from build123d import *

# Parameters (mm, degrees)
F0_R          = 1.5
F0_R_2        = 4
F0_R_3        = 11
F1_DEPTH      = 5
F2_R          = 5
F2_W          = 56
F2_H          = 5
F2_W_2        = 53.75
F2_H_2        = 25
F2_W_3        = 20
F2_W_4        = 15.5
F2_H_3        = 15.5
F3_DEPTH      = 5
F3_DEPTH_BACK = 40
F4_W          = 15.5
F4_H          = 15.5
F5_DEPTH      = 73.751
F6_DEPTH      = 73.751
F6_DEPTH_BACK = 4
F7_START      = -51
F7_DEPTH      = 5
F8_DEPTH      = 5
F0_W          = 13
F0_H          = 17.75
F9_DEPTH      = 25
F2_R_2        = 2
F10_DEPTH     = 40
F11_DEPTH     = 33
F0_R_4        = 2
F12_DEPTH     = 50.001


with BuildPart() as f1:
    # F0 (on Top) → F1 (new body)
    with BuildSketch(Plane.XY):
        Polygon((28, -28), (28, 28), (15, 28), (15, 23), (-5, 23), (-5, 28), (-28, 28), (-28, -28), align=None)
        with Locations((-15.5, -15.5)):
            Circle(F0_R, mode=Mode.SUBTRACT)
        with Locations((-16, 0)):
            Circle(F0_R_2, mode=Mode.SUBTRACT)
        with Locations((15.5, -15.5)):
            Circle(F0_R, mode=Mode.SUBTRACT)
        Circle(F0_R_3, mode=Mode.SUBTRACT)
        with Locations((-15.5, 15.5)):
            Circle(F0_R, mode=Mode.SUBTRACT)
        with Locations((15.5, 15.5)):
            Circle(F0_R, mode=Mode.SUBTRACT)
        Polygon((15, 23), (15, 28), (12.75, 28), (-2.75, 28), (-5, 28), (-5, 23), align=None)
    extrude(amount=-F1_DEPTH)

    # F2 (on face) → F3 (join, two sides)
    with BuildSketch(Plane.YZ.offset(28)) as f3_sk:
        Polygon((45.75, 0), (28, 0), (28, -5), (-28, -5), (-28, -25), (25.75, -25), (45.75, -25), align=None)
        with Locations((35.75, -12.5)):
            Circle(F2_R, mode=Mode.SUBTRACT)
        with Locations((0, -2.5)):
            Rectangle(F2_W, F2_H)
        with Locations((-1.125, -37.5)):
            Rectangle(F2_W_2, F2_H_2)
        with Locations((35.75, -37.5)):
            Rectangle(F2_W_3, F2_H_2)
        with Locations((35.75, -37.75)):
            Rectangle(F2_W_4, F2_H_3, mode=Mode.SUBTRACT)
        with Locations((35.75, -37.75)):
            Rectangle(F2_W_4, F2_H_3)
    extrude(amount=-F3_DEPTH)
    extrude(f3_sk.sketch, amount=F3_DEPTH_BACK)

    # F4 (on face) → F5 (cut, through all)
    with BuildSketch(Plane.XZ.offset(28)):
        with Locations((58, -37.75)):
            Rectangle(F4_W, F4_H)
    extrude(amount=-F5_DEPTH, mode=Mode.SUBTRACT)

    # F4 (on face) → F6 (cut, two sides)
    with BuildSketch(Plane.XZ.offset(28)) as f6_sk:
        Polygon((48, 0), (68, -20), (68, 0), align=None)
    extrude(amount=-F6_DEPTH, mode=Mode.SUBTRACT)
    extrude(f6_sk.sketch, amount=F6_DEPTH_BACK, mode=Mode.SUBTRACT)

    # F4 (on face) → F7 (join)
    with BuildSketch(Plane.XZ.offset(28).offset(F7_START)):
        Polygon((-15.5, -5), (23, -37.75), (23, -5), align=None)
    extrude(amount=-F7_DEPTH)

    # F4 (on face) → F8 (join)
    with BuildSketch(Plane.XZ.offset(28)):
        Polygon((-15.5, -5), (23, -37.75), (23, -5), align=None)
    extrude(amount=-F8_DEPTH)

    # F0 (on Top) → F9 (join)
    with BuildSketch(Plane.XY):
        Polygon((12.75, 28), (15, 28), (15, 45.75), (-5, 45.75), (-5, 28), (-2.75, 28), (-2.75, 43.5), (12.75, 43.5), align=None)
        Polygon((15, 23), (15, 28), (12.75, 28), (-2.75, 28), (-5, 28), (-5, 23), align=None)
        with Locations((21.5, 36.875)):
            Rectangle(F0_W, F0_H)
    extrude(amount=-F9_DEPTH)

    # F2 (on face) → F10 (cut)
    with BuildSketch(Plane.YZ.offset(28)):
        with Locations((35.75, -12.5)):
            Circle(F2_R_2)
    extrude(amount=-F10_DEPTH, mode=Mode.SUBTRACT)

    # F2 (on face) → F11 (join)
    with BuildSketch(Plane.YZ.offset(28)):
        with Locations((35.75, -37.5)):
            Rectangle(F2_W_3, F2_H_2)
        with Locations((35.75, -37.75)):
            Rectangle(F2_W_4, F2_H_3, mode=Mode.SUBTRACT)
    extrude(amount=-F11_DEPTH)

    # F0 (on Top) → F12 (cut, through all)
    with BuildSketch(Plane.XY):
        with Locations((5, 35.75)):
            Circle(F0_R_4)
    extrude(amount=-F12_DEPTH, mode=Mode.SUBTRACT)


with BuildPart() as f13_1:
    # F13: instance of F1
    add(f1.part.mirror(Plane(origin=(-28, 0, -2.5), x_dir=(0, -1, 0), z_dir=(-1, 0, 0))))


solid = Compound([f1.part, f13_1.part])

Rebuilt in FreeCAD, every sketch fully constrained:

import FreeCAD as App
import Part
import Sketcher
from FreeCAD import Vector
Q = App.Units.Quantity

doc = App.newDocument("Part")
params = doc.addObject("Spreadsheet::Sheet", "Params")
for row, (alias, value) in enumerate([
    ("sketch1_diameter", "3 mm"),
    ("sketch1_diameter2", "8 mm"),
    ("sketch1_diameter3", "22 mm"),
    ("sketch1_width", "56 mm"),
    ("pad1_length", "5 mm"),
    ("sketch2_diameter", "10 mm"),
    ("sketch2_height", "50 mm"),
    ("sketch2_width", "73.75 mm"),
    ("pad2_length", "5 mm"),
    ("pad2_length2", "40 mm"),
    ("sketch3_width", "15.5 mm"),
    ("sketch4_width", "20 mm"),
    ("sketch5_width", "38.5 mm"),
    ("sketch5_height", "32.75 mm"),
    ("pad3_length", "5 mm"),
    ("sketch6_width", "38.5 mm"),
    ("sketch6_height", "32.75 mm"),
    ("pad4_length", "5 mm"),
    ("sketch7_width", "20 mm"),
    ("sketch7_width2", "13 mm"),
    ("sketch7_height", "5 mm"),
    ("sketch7_width3", "15.5 mm"),
    ("sketch7_height2", "22.75 mm"),
    ("pad5_length", "25 mm"),
    ("sketch8_diameter", "4 mm"),
    ("pocket3_length", "40 mm"),
    ("sketch9_width", "20 mm"),
    ("sketch9_height", "25 mm"),
    ("sketch9_width2", "15.5 mm"),
    ("pad6_length", "33 mm"),
    ("sketch10_diameter", "4 mm"),
], start=1):
    params.set(f"A{row}", alias)
    params.set(f"B{row}", "=" + value)
    params.setAlias(f"B{row}", alias)

body = doc.addObject("PartDesign::Body", "Body")

# Sketch on XY plane
sketch1 = doc.addObject("Sketcher::SketchObject", "Sketch")
body.addObject(sketch1)
sketch1.AttachmentSupport = (doc.XY_Plane, [""])
sketch1.MapMode = "FlatFace"
sketch1.addGeometry(Part.LineSegment(Vector(28, -28, 0), Vector(28, 28, 0)), False)
sketch1.addGeometry(Part.LineSegment(Vector(28, 28, 0), Vector(-28, 28, 0)), False)
sketch1.addGeometry(Part.LineSegment(Vector(-28, 28, 0), Vector(-28, -28, 0)), False)
sketch1.addGeometry(Part.LineSegment(Vector(-28, -28, 0), Vector(28, -28, 0)), False)
sketch1.addGeometry(Part.Circle(Vector(-15.5, -15.5, 0), Vector(0, 0, 1), 1.5), False)
sketch1.addGeometry(Part.Circle(Vector(15.5, -15.5, 0), Vector(0, 0, 1), 1.5), False)
sketch1.addGeometry(Part.Circle(Vector(-16, 0, 0), Vector(0, 0, 1), 4), False)
sketch1.addGeometry(Part.Circle(Vector(-15.5, 15.5, 0), Vector(0, 0, 1), 1.5), False)
sketch1.addGeometry(Part.Circle(Vector(0, 0, 0), Vector(0, 0, 1), 11), False)
sketch1.addGeometry(Part.Circle(Vector(15.5, 15.5, 0), Vector(0, 0, 1), 1.5), False)
sketch1.addConstraint(Sketcher.Constraint("Coincident", 0, 2, 1, 1))
sketch1.addConstraint(Sketcher.Constraint("Coincident", 1, 2, 2, 1))
sketch1.addConstraint(Sketcher.Constraint("Coincident", 2, 2, 3, 1))
sketch1.addConstraint(Sketcher.Constraint("Coincident", 3, 2, 0, 1))
sketch1.addConstraint(Sketcher.Constraint("Vertical", 0))
sketch1.addConstraint(Sketcher.Constraint("Horizontal", 1))
sketch1.addConstraint(Sketcher.Constraint("Vertical", 2))
sketch1.addConstraint(Sketcher.Constraint("Horizontal", 3))
sketch1.addConstraint(Sketcher.Constraint("Coincident", 8, 3, -1, 1))
sketch1.addConstraint(Sketcher.Constraint("Equal", 4, 5))
sketch1.addConstraint(Sketcher.Constraint("Equal", 5, 7))
sketch1.addConstraint(Sketcher.Constraint("Equal", 7, 9))
sketch1.addConstraint(Sketcher.Constraint("Symmetric", 5, 3, 7, 3, -1, 1))
sketch1.addConstraint(Sketcher.Constraint("Symmetric", 4, 3, 9, 3, -1, 1))
sketch1.addConstraint(Sketcher.Constraint("Symmetric", 0, 2, 2, 2, -1, 1))
sketch1.addConstraint(Sketcher.Constraint("Symmetric", 4, 3, 5, 3, -2))
sketch1.addConstraint(Sketcher.Constraint("PointOnObject", 6, 3, -1))
sketch1.addConstraint(Sketcher.Constraint("Equal", 3, 0))
sketch1.addConstraint(Sketcher.Constraint("Diameter", 4, Q("3 mm")))
sketch1.addConstraint(Sketcher.Constraint("Diameter", 6, Q("8 mm")))
sketch1.addConstraint(Sketcher.Constraint("Diameter", 8, Q("22 mm")))
sketch1.addConstraint(Sketcher.Constraint("DistanceX", 1, 2, 1, 1, Q("56 mm")))
sketch1.addConstraint(Sketcher.Constraint("DistanceX", 6, 3, -1, 1, Q("16 mm")))
sketch1.addConstraint(Sketcher.Constraint("DistanceX", 4, 3, 5, 3, Q("31 mm")))
sketch1.addConstraint(Sketcher.Constraint("DistanceY", 4, 3, 7, 3, Q("31 mm")))
sketch1.setExpression("Constraints[18]", "Params.sketch1_diameter")
sketch1.setExpression("Constraints[19]", "Params.sketch1_diameter2")
sketch1.setExpression("Constraints[20]", "Params.sketch1_diameter3")
sketch1.setExpression("Constraints[21]", "Params.sketch1_width")
pad1 = doc.addObject("PartDesign::Pad", "Pad")
body.addObject(pad1)
pad1.Profile = sketch1
pad1.setExpression("Length", "Params.pad1_length")
pad1.Reversed = True

# Sketch on YZ plane
sketch2 = doc.addObject("Sketcher::SketchObject", "Sketch001")
body.addObject(sketch2)
sketch2.AttachmentSupport = (doc.YZ_Plane, [""])
sketch2.MapMode = "FlatFace"
sketch2.AttachmentOffset = App.Placement(Vector(0, 0, 28), App.Rotation())
sketch2.addGeometry(Part.LineSegment(Vector(46, 0, 0), Vector(-28, 0, 0)), False)
sketch2.addGeometry(Part.LineSegment(Vector(-28, 0, 0), Vector(-28, -50, 0)), False)
sketch2.addGeometry(Part.LineSegment(Vector(-28, -50, 0), Vector(46, -50, 0)), False)
sketch2.addGeometry(Part.LineSegment(Vector(46, -50, 0), Vector(46, 0, 0)), False)
sketch2.addGeometry(Part.Circle(Vector(36, -12, 0), Vector(0, 0, 1), 5), False)
sketch2.addConstraint(Sketcher.Constraint("Coincident", 0, 2, 1, 1))
sketch2.addConstraint(Sketcher.Constraint("Coincident", 1, 2, 2, 1))
sketch2.addConstraint(Sketcher.Constraint("Coincident", 2, 2, 3, 1))
sketch2.addConstraint(Sketcher.Constraint("Coincident", 3, 2, 0, 1))
sketch2.addConstraint(Sketcher.Constraint("Horizontal", 0))
sketch2.addConstraint(Sketcher.Constraint("Vertical", 1))
sketch2.addConstraint(Sketcher.Constraint("Horizontal", 2))
sketch2.addConstraint(Sketcher.Constraint("Vertical", 3))
sketch2.addConstraint(Sketcher.Constraint("PointOnObject", 0, 2, -1))
sketch2.addConstraint(Sketcher.Constraint("Diameter", 4, Q("10 mm")))
sketch2.addConstraint(Sketcher.Constraint("DistanceY", 1, 2, 1, 1, Q("50 mm")))
sketch2.addConstraint(Sketcher.Constraint("DistanceX", 0, 2, -1, 1, Q("28 mm")))
sketch2.addConstraint(Sketcher.Constraint("DistanceX", 4, 3, 2, 2, Q("10 mm")))
sketch2.addConstraint(Sketcher.Constraint("DistanceX", 0, 2, 0, 1, Q("73.75 mm")))
sketch2.addConstraint(Sketcher.Constraint("DistanceY", 4, 3, -1, 1, Q("12.5 mm")))
sketch2.setExpression("Constraints[9]", "Params.sketch2_diameter")
sketch2.setExpression("Constraints[10]", "Params.sketch2_height")
sketch2.setExpression("Constraints[13]", "Params.sketch2_width")
pad2 = doc.addObject("PartDesign::Pad", "Pad001")
body.addObject(pad2)
pad2.Profile = sketch2
pad2.Type = "TwoLengths"
pad2.setExpression("Length", "Params.pad2_length")
pad2.setExpression("Length2", "Params.pad2_length2")
pad2.Reversed = True

# Sketch on XZ plane
sketch3 = doc.addObject("Sketcher::SketchObject", "Sketch002")
body.addObject(sketch3)
sketch3.AttachmentSupport = (doc.XZ_Plane, [""])
sketch3.MapMode = "FlatFace"
sketch3.AttachmentOffset = App.Placement(Vector(0, 0, 28), App.Rotation())
sketch3.addGeometry(Part.LineSegment(Vector(50, -30, 0), Vector(50, -46, 0)), False)
sketch3.addGeometry(Part.LineSegment(Vector(50, -46, 0), Vector(66, -46, 0)), False)
sketch3.addGeometry(Part.LineSegment(Vector(66, -46, 0), Vector(66, -30, 0)), False)
sketch3.addGeometry(Part.LineSegment(Vector(66, -30, 0), Vector(50, -30, 0)), False)
sketch3.addConstraint(Sketcher.Constraint("Coincident", 0, 2, 1, 1))
sketch3.addConstraint(Sketcher.Constraint("Coincident", 1, 2, 2, 1))
sketch3.addConstraint(Sketcher.Constraint("Coincident", 2, 2, 3, 1))
sketch3.addConstraint(Sketcher.Constraint("Coincident", 3, 2, 0, 1))
sketch3.addConstraint(Sketcher.Constraint("Vertical", 0))
sketch3.addConstraint(Sketcher.Constraint("Horizontal", 1))
sketch3.addConstraint(Sketcher.Constraint("Vertical", 2))
sketch3.addConstraint(Sketcher.Constraint("Horizontal", 3))
sketch3.addConstraint(Sketcher.Constraint("Equal", 3, 0))
sketch3.addConstraint(Sketcher.Constraint("DistanceX", 1, 1, 1, 2, Q("15.5 mm")))
sketch3.addConstraint(Sketcher.Constraint("DistanceY", 2, 2, -1, 1, Q("30 mm")))
sketch3.addConstraint(Sketcher.Constraint("DistanceX", -1, 1, 0, 2, Q("50.25 mm")))
sketch3.setExpression("Constraints[9]", "Params.sketch3_width")
pocket1 = doc.addObject("PartDesign::Pocket", "Pocket")
body.addObject(pocket1)
pocket1.Profile = sketch3
pocket1.Type = "ThroughAll"

# Sketch on XZ plane
sketch4 = doc.addObject("Sketcher::SketchObject", "Sketch003")
body.addObject(sketch4)
sketch4.AttachmentSupport = (doc.XZ_Plane, [""])
sketch4.MapMode = "FlatFace"
sketch4.AttachmentOffset = App.Placement(Vector(0, 0, 28), App.Rotation())
sketch4.addGeometry(Part.LineSegment(Vector(48, 0, 0), Vector(68, -20, 0)), False)
sketch4.addGeometry(Part.LineSegment(Vector(68, -20, 0), Vector(68, 0, 0)), False)
sketch4.addGeometry(Part.LineSegment(Vector(68, 0, 0), Vector(48, 0, 0)), False)
sketch4.addConstraint(Sketcher.Constraint("Coincident", 0, 2, 1, 1))
sketch4.addConstraint(Sketcher.Constraint("Coincident", 1, 2, 2, 1))
sketch4.addConstraint(Sketcher.Constraint("Coincident", 2, 2, 0, 1))
sketch4.addConstraint(Sketcher.Constraint("Vertical", 1))
sketch4.addConstraint(Sketcher.Constraint("Horizontal", 2))
sketch4.addConstraint(Sketcher.Constraint("PointOnObject", 1, 2, -1))
sketch4.addConstraint(Sketcher.Constraint("Equal", 2, 1))
sketch4.addConstraint(Sketcher.Constraint("DistanceX", 2, 2, 2, 1, Q("20 mm")))
sketch4.addConstraint(Sketcher.Constraint("DistanceX", -1, 1, 0, 2, Q("68 mm")))
sketch4.setExpression("Constraints[7]", "Params.sketch4_width")
pocket2 = doc.addObject("PartDesign::Pocket", "Pocket001")
body.addObject(pocket2)
pocket2.Profile = sketch4
pocket2.Type = "ThroughAll"
pocket2.Midplane = True

# Sketch on XZ plane
sketch5 = doc.addObject("Sketcher::SketchObject", "Sketch004")
body.addObject(sketch5)
sketch5.AttachmentSupport = (doc.XZ_Plane, [""])
sketch5.MapMode = "FlatFace"
sketch5.AttachmentOffset = App.Placement(Vector(0, 0, -23), App.Rotation())
sketch5.addGeometry(Part.LineSegment(Vector(-16, -5, 0), Vector(23, -38, 0)), False)
sketch5.addGeometry(Part.LineSegment(Vector(23, -38, 0), Vector(23, -5, 0)), False)
sketch5.addGeometry(Part.LineSegment(Vector(23, -5, 0), Vector(-16, -5, 0)), False)
sketch5.addConstraint(Sketcher.Constraint("Coincident", 0, 2, 1, 1))
sketch5.addConstraint(Sketcher.Constraint("Coincident", 1, 2, 2, 1))
sketch5.addConstraint(Sketcher.Constraint("Coincident", 2, 2, 0, 1))
sketch5.addConstraint(Sketcher.Constraint("Vertical", 1))
sketch5.addConstraint(Sketcher.Constraint("Horizontal", 2))
sketch5.addConstraint(Sketcher.Constraint("DistanceX", 2, 2, 2, 1, Q("38.5 mm")))
sketch5.addConstraint(Sketcher.Constraint("DistanceX", -1, 1, 0, 2, Q("23 mm")))
sketch5.addConstraint(Sketcher.Constraint("DistanceY", 1, 2, -1, 1, Q("5 mm")))
sketch5.addConstraint(Sketcher.Constraint("DistanceY", 1, 1, 1, 2, Q("32.75 mm")))
sketch5.setExpression("Constraints[5]", "Params.sketch5_width")
sketch5.setExpression("Constraints[8]", "Params.sketch5_height")
pad3 = doc.addObject("PartDesign::Pad", "Pad002")
body.addObject(pad3)
pad3.Profile = sketch5
pad3.setExpression("Length", "Params.pad3_length")
pad3.Reversed = True

# Sketch on XZ plane
sketch6 = doc.addObject("Sketcher::SketchObject", "Sketch005")
body.addObject(sketch6)
sketch6.AttachmentSupport = (doc.XZ_Plane, [""])
sketch6.MapMode = "FlatFace"
sketch6.AttachmentOffset = App.Placement(Vector(0, 0, 28), App.Rotation())
sketch6.addGeometry(Part.LineSegment(Vector(-16, -5, 0), Vector(23, -38, 0)), False)
sketch6.addGeometry(Part.LineSegment(Vector(23, -38, 0), Vector(23, -5, 0)), False)
sketch6.addGeometry(Part.LineSegment(Vector(23, -5, 0), Vector(-16, -5, 0)), False)
sketch6.addConstraint(Sketcher.Constraint("Coincident", 0, 2, 1, 1))
sketch6.addConstraint(Sketcher.Constraint("Coincident", 1, 2, 2, 1))
sketch6.addConstraint(Sketcher.Constraint("Coincident", 2, 2, 0, 1))
sketch6.addConstraint(Sketcher.Constraint("Vertical", 1))
sketch6.addConstraint(Sketcher.Constraint("Horizontal", 2))
sketch6.addConstraint(Sketcher.Constraint("DistanceX", 2, 2, 2, 1, Q("38.5 mm")))
sketch6.addConstraint(Sketcher.Constraint("DistanceX", -1, 1, 0, 2, Q("23 mm")))
sketch6.addConstraint(Sketcher.Constraint("DistanceY", 1, 2, -1, 1, Q("5 mm")))
sketch6.addConstraint(Sketcher.Constraint("DistanceY", 1, 1, 1, 2, Q("32.75 mm")))
sketch6.setExpression("Constraints[5]", "Params.sketch6_width")
sketch6.setExpression("Constraints[8]", "Params.sketch6_height")
pad4 = doc.addObject("PartDesign::Pad", "Pad003")
body.addObject(pad4)
pad4.Profile = sketch6
pad4.setExpression("Length", "Params.pad4_length")
pad4.Reversed = True

# Sketch on XY plane
sketch7 = doc.addObject("Sketcher::SketchObject", "Sketch006")
body.addObject(sketch7)
sketch7.AttachmentSupport = (doc.XY_Plane, [""])
sketch7.MapMode = "FlatFace"
sketch7.addGeometry(Part.LineSegment(Vector(-5, 46, 0), Vector(-5, 23, 0)), False)
sketch7.addGeometry(Part.LineSegment(Vector(-5, 23, 0), Vector(15, 23, 0)), False)
sketch7.addGeometry(Part.LineSegment(Vector(15, 23, 0), Vector(15, 28, 0)), False)
sketch7.addGeometry(Part.LineSegment(Vector(15, 28, 0), Vector(28, 28, 0)), False)
sketch7.addGeometry(Part.LineSegment(Vector(28, 28, 0), Vector(28, 46, 0)), False)
sketch7.addGeometry(Part.LineSegment(Vector(28, 46, 0), Vector(-5, 46, 0)), False)
sketch7.addGeometry(Part.LineSegment(Vector(-3, 28, 0), Vector(-3, 44, 0)), False)
sketch7.addGeometry(Part.LineSegment(Vector(-3, 44, 0), Vector(13, 44, 0)), False)
sketch7.addGeometry(Part.LineSegment(Vector(13, 44, 0), Vector(13, 28, 0)), False)
sketch7.addGeometry(Part.LineSegment(Vector(13, 28, 0), Vector(-3, 28, 0)), False)
sketch7.addConstraint(Sketcher.Constraint("Coincident", 0, 2, 1, 1))
sketch7.addConstraint(Sketcher.Constraint("Coincident", 1, 2, 2, 1))
sketch7.addConstraint(Sketcher.Constraint("Coincident", 2, 2, 3, 1))
sketch7.addConstraint(Sketcher.Constraint("Coincident", 3, 2, 4, 1))
sketch7.addConstraint(Sketcher.Constraint("Coincident", 4, 2, 5, 1))
sketch7.addConstraint(Sketcher.Constraint("Coincident", 5, 2, 0, 1))
sketch7.addConstraint(Sketcher.Constraint("Coincident", 6, 2, 7, 1))
sketch7.addConstraint(Sketcher.Constraint("Coincident", 7, 2, 8, 1))
sketch7.addConstraint(Sketcher.Constraint("Coincident", 8, 2, 9, 1))
sketch7.addConstraint(Sketcher.Constraint("Coincident", 9, 2, 6, 1))
sketch7.addConstraint(Sketcher.Constraint("Vertical", 0))
sketch7.addConstraint(Sketcher.Constraint("Horizontal", 1))
sketch7.addConstraint(Sketcher.Constraint("Vertical", 2))
sketch7.addConstraint(Sketcher.Constraint("Horizontal", 3))
sketch7.addConstraint(Sketcher.Constraint("Vertical", 4))
sketch7.addConstraint(Sketcher.Constraint("Horizontal", 5))
sketch7.addConstraint(Sketcher.Constraint("Vertical", 6))
sketch7.addConstraint(Sketcher.Constraint("Horizontal", 7))
sketch7.addConstraint(Sketcher.Constraint("Vertical", 8))
sketch7.addConstraint(Sketcher.Constraint("Horizontal", 9))
sketch7.addConstraint(Sketcher.Constraint("Horizontal", 3, 2, 8, 2))
sketch7.addConstraint(Sketcher.Constraint("Equal", 9, 6))
sketch7.addConstraint(Sketcher.Constraint("DistanceX", 1, 1, 1, 2, Q("20 mm")))
sketch7.addConstraint(Sketcher.Constraint("DistanceX", 3, 1, 3, 2, Q("13 mm")))
sketch7.addConstraint(Sketcher.Constraint("DistanceY", 2, 1, 2, 2, Q("5 mm")))
sketch7.addConstraint(Sketcher.Constraint("DistanceX", 7, 1, 7, 2, Q("15.5 mm")))
sketch7.addConstraint(Sketcher.Constraint("DistanceX", 0, 2, -1, 1, Q("5 mm")))
sketch7.addConstraint(Sketcher.Constraint("DistanceY", -1, 1, 0, 2, Q("23 mm")))
sketch7.addConstraint(Sketcher.Constraint("DistanceY", 0, 2, 0, 1, Q("22.75 mm")))
sketch7.addConstraint(Sketcher.Constraint("DistanceX", 6, 2, -1, 1, Q("2.75 mm")))
sketch7.setExpression("Constraints[22]", "Params.sketch7_width")
sketch7.setExpression("Constraints[23]", "Params.sketch7_width2")
sketch7.setExpression("Constraints[24]", "Params.sketch7_height")
sketch7.setExpression("Constraints[25]", "Params.sketch7_width3")
sketch7.setExpression("Constraints[28]", "Params.sketch7_height2")
pad5 = doc.addObject("PartDesign::Pad", "Pad004")
body.addObject(pad5)
pad5.Profile = sketch7
pad5.setExpression("Length", "Params.pad5_length")
pad5.Reversed = True

# Sketch on YZ plane
sketch8 = doc.addObject("Sketcher::SketchObject", "Sketch007")
body.addObject(sketch8)
sketch8.AttachmentSupport = (doc.YZ_Plane, [""])
sketch8.MapMode = "FlatFace"
sketch8.AttachmentOffset = App.Placement(Vector(0, 0, 28), App.Rotation())
sketch8.addGeometry(Part.Circle(Vector(35.8, -12.5, 0), Vector(0, 0, 1), 2), False)
sketch8.addConstraint(Sketcher.Constraint("Diameter", 0, Q("4 mm")))
sketch8.addConstraint(Sketcher.Constraint("DistanceY", 0, 3, -1, 1, Q("12.5 mm")))
sketch8.addConstraint(Sketcher.Constraint("DistanceX", -1, 1, 0, 3, Q("35.75 mm")))
sketch8.setExpression("Constraints[0]", "Params.sketch8_diameter")
pocket3 = doc.addObject("PartDesign::Pocket", "Pocket002")
body.addObject(pocket3)
pocket3.Profile = sketch8
pocket3.setExpression("Length", "Params.pocket3_length")

# Sketch on YZ plane
sketch9 = doc.addObject("Sketcher::SketchObject", "Sketch008")
body.addObject(sketch9)
sketch9.AttachmentSupport = (doc.YZ_Plane, [""])
sketch9.MapMode = "FlatFace"
sketch9.AttachmentOffset = App.Placement(Vector(0, 0, 28), App.Rotation())
sketch9.addGeometry(Part.LineSegment(Vector(26, -25, 0), Vector(26, -50, 0)), False)
sketch9.addGeometry(Part.LineSegment(Vector(26, -50, 0), Vector(46, -50, 0)), False)
sketch9.addGeometry(Part.LineSegment(Vector(46, -50, 0), Vector(46, -25, 0)), False)
sketch9.addGeometry(Part.LineSegment(Vector(46, -25, 0), Vector(26, -25, 0)), False)
sketch9.addGeometry(Part.LineSegment(Vector(44, -46, 0), Vector(28, -46, 0)), False)
sketch9.addGeometry(Part.LineSegment(Vector(28, -46, 0), Vector(28, -30, 0)), False)
sketch9.addGeometry(Part.LineSegment(Vector(28, -30, 0), Vector(44, -30, 0)), False)
sketch9.addGeometry(Part.LineSegment(Vector(44, -30, 0), Vector(44, -46, 0)), False)
sketch9.addConstraint(Sketcher.Constraint("Coincident", 0, 2, 1, 1))
sketch9.addConstraint(Sketcher.Constraint("Coincident", 1, 2, 2, 1))
sketch9.addConstraint(Sketcher.Constraint("Coincident", 2, 2, 3, 1))
sketch9.addConstraint(Sketcher.Constraint("Coincident", 3, 2, 0, 1))
sketch9.addConstraint(Sketcher.Constraint("Coincident", 4, 2, 5, 1))
sketch9.addConstraint(Sketcher.Constraint("Coincident", 5, 2, 6, 1))
sketch9.addConstraint(Sketcher.Constraint("Coincident", 6, 2, 7, 1))
sketch9.addConstraint(Sketcher.Constraint("Coincident", 7, 2, 4, 1))
sketch9.addConstraint(Sketcher.Constraint("Vertical", 0))
sketch9.addConstraint(Sketcher.Constraint("Horizontal", 1))
sketch9.addConstraint(Sketcher.Constraint("Vertical", 2))
sketch9.addConstraint(Sketcher.Constraint("Horizontal", 3))
sketch9.addConstraint(Sketcher.Constraint("Horizontal", 4))
sketch9.addConstraint(Sketcher.Constraint("Vertical", 5))
sketch9.addConstraint(Sketcher.Constraint("Horizontal", 6))
sketch9.addConstraint(Sketcher.Constraint("Vertical", 7))
sketch9.addConstraint(Sketcher.Constraint("Equal", 6, 5))
sketch9.addConstraint(Sketcher.Constraint("DistanceX", 1, 1, 1, 2, Q("20 mm")))
sketch9.addConstraint(Sketcher.Constraint("DistanceY", 0, 2, 0, 1, Q("25 mm")))
sketch9.addConstraint(Sketcher.Constraint("DistanceX", 4, 2, 4, 1, Q("15.5 mm")))
sketch9.addConstraint(Sketcher.Constraint("DistanceY", 0, 2, -1, 1, Q("50 mm")))
sketch9.addConstraint(Sketcher.Constraint("DistanceX", -1, 1, 4, 2, Q("28 mm")))
sketch9.addConstraint(Sketcher.Constraint("DistanceY", 5, 2, -1, 1, Q("30 mm")))
sketch9.addConstraint(Sketcher.Constraint("DistanceX", -1, 1, 0, 2, Q("25.75 mm")))
sketch9.setExpression("Constraints[17]", "Params.sketch9_width")
sketch9.setExpression("Constraints[18]", "Params.sketch9_height")
sketch9.setExpression("Constraints[19]", "Params.sketch9_width2")
pad6 = doc.addObject("PartDesign::Pad", "Pad005")
body.addObject(pad6)
pad6.Profile = sketch9
pad6.setExpression("Length", "Params.pad6_length")
pad6.Reversed = True

# Sketch on XY plane
sketch10 = doc.addObject("Sketcher::SketchObject", "Sketch009")
body.addObject(sketch10)
sketch10.AttachmentSupport = (doc.XY_Plane, [""])
sketch10.MapMode = "FlatFace"
sketch10.addGeometry(Part.Circle(Vector(5, 35.8, 0), Vector(0, 0, 1), 2), False)
sketch10.addConstraint(Sketcher.Constraint("Diameter", 0, Q("4 mm")))
sketch10.addConstraint(Sketcher.Constraint("DistanceX", -1, 1, 0, 3, Q("5 mm")))
sketch10.addConstraint(Sketcher.Constraint("DistanceY", -1, 1, 0, 3, Q("35.75 mm")))
sketch10.setExpression("Constraints[0]", "Params.sketch10_diameter")
pocket4 = doc.addObject("PartDesign::Pocket", "Pocket003")
body.addObject(pocket4)
pocket4.Profile = sketch10
pocket4.Type = "ThroughAll"
body2 = doc.addObject("PartDesign::Body", "Body001")
doc.recompute()

mirroring = doc.addObject("Part::Mirroring", "Mirroring")
mirroring.Source = body
mirroring.Base = Vector(-28, 0, -2.5)
mirroring.Normal = Vector(-1, 0, 0)
body2.BaseFeature = mirroring
doc.recompute()
mirroring.Visibility = False

doc.recompute()
